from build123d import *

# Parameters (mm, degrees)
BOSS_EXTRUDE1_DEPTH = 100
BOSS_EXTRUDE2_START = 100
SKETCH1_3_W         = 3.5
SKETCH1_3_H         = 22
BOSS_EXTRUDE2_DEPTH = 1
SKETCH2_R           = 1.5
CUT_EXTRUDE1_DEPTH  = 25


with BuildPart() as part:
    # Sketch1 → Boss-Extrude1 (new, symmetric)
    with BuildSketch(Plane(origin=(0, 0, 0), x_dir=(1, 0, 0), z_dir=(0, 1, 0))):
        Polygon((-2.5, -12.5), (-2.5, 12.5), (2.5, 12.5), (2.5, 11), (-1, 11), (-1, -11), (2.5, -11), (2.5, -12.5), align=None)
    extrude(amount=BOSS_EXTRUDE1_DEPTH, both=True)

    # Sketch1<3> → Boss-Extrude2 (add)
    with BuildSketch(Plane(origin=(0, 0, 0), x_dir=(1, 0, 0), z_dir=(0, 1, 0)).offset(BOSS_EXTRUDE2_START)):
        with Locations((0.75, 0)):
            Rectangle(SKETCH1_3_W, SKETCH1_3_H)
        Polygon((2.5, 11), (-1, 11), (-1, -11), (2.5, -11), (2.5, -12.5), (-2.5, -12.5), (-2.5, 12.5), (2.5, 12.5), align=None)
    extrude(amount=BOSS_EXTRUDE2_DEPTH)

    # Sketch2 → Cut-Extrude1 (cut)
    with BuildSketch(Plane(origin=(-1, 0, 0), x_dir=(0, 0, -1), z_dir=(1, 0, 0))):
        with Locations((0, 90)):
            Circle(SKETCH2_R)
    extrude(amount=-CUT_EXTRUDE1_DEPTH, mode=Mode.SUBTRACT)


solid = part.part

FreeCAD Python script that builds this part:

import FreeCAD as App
import Part
import Sketcher
from FreeCAD import Vector
Q = App.Units.Quantity

doc = App.newDocument("Part")
body = doc.addObject("PartDesign::Body", "Body")

# Sketch on XZ plane
sketch1 = body.newObject("Sketcher::SketchObject", "Sketch")
sketch1.AttachmentSupport = (doc.getObject("XZ_Plane"), [""])
sketch1.MapMode = "FlatFace"
sketch1.addGeometry([
    Part.LineSegment(Vector(-2.5, -12.5, 0), Vector(-2.5, 12.5, 0)),  # 0
    Part.LineSegment(Vector(-2.5, 12.5, 0), Vector(2.5, 12.5, 0)),  # 1
    Part.LineSegment(Vector(2.5, 12.5, 0), Vector(2.5, 11, 0)),  # 2
    Part.LineSegment(Vector(2.5, 11, 0), Vector(-1, 11, 0)),  # 3
    Part.LineSegment(Vector(-1, 11, 0), Vector(-1, -11, 0)),  # 4
    Part.LineSegment(Vector(-1, -11, 0), Vector(2.5, -11, 0)),  # 5
    Part.LineSegment(Vector(2.5, -11, 0), Vector(2.5, -12.5, 0)),  # 6
    Part.LineSegment(Vector(2.5, -12.5, 0), Vector(-2.5, -12.5, 0)),  # 7
], False)
sketch1.addConstraint([
    Sketcher.Constraint("Coincident", 0, 2, 1, 1),
    Sketcher.Constraint("Coincident", 1, 2, 2, 1),
    Sketcher.Constraint("Coincident", 2, 2, 3, 1),
    Sketcher.Constraint("Coincident", 3, 2, 4, 1),
    Sketcher.Constraint("Coincident", 4, 2, 5, 1),
    Sketcher.Constraint("Coincident", 5, 2, 6, 1),
    Sketcher.Constraint("Coincident", 6, 2, 7, 1),
    Sketcher.Constraint("Coincident", 7, 2, 0, 1),
    Sketcher.Constraint("Vertical", 0),
    Sketcher.Constraint("Horizontal", 1),
    Sketcher.Constraint("Vertical", 2),
    Sketcher.Constraint("Horizontal", 3),
    Sketcher.Constraint("Vertical", 4),
    Sketcher.Constraint("Horizontal", 5),
    Sketcher.Constraint("Vertical", 6),
    Sketcher.Constraint("Horizontal", 7),
    Sketcher.Constraint("Symmetric", 0, 2, 6, 2, -1, 1),
    Sketcher.Constraint("Symmetric", 2, 2, 5, 2, -1),
    Sketcher.Constraint("DistanceX", 1, 1, 1, 2, Q("5 mm")),
    Sketcher.Constraint("DistanceY", 0, 1, 0, 2, Q("25 mm")),
    Sketcher.Constraint("DistanceY", 4, 2, 4, 1, Q("22 mm")),
    Sketcher.Constraint("DistanceX", 3, 2, 3, 1, Q("3.5 mm")),
])
pad1 = body.newObject("PartDesign::Pad", "Pad")
pad1.Profile = sketch1
pad1.Length = 200
pad1.Midplane = True

# Sketch on XZ plane
sketch2 = body.newObject("Sketcher::SketchObject", "Sketch001")
sketch2.AttachmentSupport = (doc.getObject("XZ_Plane"), [""])
sketch2.MapMode = "FlatFace"
sketch2.AttachmentOffset = App.Placement(Vector(0, 0, -100), App.Rotation())
sketch2.addGeometry([
    Part.LineSegment(Vector(2.5, -12.5, 0), Vector(-2.5, -12.5, 0)),
    Part.LineSegment(Vector(-2.5, -12.5, 0), Vector(-2.5, 12.5, 0)),
    Part.LineSegment(Vector(-2.5, 12.5, 0), Vector(2.5, 12.5, 0)),
    Part.LineSegment(Vector(2.5, 12.5, 0), Vector(2.5, -12.5, 0)),
], False)
sketch2.addConstraint([
    Sketcher.Constraint("Coincident", 0, 2, 1, 1),
    Sketcher.Constraint("Coincident", 1, 2, 2, 1),
    Sketcher.Constraint("Coincident", 2, 2, 3, 1),
    Sketcher.Constraint("Coincident", 3, 2, 0, 1),
    Sketcher.Constraint("Horizontal", 0),
    Sketcher.Constraint("Vertical", 1),
    Sketcher.Constraint("Horizontal", 2),
    Sketcher.Constraint("Vertical", 3),
    Sketcher.Constraint("Symmetric", 0, 2, 2, 2, -1, 1),
    Sketcher.Constraint("DistanceX", 0, 2, 0, 1, Q("5 mm")),
    Sketcher.Constraint("DistanceY", 1, 1, 1, 2, Q("25 mm")),
])
pad2 = body.newObject("PartDesign::Pad", "Pad001")
pad2.Profile = sketch2
pad2.Length = 1
pad2.Reversed = True

# Sketch on YZ plane
sketch3 = body.newObject("Sketcher::SketchObject", "Sketch002")
sketch3.AttachmentSupport = (doc.getObject("YZ_Plane"), [""])
sketch3.MapMode = "FlatFace"
sketch3.AttachmentOffset = App.Placement(Vector(0, 0, -1), App.Rotation())
sketch3.addGeometry(Part.Circle(Vector(90, 0, 0), Vector(0, 0, 1), 1.5), False)
sketch3.addConstraint([
    Sketcher.Constraint("PointOnObject", 0, 3, -1),
    Sketcher.Constraint("Diameter", 0, Q("3 mm")),
    Sketcher.Constraint("DistanceX", -1, 1, 0, 3, Q("90 mm")),
])
pocket1 = body.newObject("PartDesign::Pocket", "Pocket")
pocket1.Profile = sketch3
pocket1.Length = 25

doc.recompute()
